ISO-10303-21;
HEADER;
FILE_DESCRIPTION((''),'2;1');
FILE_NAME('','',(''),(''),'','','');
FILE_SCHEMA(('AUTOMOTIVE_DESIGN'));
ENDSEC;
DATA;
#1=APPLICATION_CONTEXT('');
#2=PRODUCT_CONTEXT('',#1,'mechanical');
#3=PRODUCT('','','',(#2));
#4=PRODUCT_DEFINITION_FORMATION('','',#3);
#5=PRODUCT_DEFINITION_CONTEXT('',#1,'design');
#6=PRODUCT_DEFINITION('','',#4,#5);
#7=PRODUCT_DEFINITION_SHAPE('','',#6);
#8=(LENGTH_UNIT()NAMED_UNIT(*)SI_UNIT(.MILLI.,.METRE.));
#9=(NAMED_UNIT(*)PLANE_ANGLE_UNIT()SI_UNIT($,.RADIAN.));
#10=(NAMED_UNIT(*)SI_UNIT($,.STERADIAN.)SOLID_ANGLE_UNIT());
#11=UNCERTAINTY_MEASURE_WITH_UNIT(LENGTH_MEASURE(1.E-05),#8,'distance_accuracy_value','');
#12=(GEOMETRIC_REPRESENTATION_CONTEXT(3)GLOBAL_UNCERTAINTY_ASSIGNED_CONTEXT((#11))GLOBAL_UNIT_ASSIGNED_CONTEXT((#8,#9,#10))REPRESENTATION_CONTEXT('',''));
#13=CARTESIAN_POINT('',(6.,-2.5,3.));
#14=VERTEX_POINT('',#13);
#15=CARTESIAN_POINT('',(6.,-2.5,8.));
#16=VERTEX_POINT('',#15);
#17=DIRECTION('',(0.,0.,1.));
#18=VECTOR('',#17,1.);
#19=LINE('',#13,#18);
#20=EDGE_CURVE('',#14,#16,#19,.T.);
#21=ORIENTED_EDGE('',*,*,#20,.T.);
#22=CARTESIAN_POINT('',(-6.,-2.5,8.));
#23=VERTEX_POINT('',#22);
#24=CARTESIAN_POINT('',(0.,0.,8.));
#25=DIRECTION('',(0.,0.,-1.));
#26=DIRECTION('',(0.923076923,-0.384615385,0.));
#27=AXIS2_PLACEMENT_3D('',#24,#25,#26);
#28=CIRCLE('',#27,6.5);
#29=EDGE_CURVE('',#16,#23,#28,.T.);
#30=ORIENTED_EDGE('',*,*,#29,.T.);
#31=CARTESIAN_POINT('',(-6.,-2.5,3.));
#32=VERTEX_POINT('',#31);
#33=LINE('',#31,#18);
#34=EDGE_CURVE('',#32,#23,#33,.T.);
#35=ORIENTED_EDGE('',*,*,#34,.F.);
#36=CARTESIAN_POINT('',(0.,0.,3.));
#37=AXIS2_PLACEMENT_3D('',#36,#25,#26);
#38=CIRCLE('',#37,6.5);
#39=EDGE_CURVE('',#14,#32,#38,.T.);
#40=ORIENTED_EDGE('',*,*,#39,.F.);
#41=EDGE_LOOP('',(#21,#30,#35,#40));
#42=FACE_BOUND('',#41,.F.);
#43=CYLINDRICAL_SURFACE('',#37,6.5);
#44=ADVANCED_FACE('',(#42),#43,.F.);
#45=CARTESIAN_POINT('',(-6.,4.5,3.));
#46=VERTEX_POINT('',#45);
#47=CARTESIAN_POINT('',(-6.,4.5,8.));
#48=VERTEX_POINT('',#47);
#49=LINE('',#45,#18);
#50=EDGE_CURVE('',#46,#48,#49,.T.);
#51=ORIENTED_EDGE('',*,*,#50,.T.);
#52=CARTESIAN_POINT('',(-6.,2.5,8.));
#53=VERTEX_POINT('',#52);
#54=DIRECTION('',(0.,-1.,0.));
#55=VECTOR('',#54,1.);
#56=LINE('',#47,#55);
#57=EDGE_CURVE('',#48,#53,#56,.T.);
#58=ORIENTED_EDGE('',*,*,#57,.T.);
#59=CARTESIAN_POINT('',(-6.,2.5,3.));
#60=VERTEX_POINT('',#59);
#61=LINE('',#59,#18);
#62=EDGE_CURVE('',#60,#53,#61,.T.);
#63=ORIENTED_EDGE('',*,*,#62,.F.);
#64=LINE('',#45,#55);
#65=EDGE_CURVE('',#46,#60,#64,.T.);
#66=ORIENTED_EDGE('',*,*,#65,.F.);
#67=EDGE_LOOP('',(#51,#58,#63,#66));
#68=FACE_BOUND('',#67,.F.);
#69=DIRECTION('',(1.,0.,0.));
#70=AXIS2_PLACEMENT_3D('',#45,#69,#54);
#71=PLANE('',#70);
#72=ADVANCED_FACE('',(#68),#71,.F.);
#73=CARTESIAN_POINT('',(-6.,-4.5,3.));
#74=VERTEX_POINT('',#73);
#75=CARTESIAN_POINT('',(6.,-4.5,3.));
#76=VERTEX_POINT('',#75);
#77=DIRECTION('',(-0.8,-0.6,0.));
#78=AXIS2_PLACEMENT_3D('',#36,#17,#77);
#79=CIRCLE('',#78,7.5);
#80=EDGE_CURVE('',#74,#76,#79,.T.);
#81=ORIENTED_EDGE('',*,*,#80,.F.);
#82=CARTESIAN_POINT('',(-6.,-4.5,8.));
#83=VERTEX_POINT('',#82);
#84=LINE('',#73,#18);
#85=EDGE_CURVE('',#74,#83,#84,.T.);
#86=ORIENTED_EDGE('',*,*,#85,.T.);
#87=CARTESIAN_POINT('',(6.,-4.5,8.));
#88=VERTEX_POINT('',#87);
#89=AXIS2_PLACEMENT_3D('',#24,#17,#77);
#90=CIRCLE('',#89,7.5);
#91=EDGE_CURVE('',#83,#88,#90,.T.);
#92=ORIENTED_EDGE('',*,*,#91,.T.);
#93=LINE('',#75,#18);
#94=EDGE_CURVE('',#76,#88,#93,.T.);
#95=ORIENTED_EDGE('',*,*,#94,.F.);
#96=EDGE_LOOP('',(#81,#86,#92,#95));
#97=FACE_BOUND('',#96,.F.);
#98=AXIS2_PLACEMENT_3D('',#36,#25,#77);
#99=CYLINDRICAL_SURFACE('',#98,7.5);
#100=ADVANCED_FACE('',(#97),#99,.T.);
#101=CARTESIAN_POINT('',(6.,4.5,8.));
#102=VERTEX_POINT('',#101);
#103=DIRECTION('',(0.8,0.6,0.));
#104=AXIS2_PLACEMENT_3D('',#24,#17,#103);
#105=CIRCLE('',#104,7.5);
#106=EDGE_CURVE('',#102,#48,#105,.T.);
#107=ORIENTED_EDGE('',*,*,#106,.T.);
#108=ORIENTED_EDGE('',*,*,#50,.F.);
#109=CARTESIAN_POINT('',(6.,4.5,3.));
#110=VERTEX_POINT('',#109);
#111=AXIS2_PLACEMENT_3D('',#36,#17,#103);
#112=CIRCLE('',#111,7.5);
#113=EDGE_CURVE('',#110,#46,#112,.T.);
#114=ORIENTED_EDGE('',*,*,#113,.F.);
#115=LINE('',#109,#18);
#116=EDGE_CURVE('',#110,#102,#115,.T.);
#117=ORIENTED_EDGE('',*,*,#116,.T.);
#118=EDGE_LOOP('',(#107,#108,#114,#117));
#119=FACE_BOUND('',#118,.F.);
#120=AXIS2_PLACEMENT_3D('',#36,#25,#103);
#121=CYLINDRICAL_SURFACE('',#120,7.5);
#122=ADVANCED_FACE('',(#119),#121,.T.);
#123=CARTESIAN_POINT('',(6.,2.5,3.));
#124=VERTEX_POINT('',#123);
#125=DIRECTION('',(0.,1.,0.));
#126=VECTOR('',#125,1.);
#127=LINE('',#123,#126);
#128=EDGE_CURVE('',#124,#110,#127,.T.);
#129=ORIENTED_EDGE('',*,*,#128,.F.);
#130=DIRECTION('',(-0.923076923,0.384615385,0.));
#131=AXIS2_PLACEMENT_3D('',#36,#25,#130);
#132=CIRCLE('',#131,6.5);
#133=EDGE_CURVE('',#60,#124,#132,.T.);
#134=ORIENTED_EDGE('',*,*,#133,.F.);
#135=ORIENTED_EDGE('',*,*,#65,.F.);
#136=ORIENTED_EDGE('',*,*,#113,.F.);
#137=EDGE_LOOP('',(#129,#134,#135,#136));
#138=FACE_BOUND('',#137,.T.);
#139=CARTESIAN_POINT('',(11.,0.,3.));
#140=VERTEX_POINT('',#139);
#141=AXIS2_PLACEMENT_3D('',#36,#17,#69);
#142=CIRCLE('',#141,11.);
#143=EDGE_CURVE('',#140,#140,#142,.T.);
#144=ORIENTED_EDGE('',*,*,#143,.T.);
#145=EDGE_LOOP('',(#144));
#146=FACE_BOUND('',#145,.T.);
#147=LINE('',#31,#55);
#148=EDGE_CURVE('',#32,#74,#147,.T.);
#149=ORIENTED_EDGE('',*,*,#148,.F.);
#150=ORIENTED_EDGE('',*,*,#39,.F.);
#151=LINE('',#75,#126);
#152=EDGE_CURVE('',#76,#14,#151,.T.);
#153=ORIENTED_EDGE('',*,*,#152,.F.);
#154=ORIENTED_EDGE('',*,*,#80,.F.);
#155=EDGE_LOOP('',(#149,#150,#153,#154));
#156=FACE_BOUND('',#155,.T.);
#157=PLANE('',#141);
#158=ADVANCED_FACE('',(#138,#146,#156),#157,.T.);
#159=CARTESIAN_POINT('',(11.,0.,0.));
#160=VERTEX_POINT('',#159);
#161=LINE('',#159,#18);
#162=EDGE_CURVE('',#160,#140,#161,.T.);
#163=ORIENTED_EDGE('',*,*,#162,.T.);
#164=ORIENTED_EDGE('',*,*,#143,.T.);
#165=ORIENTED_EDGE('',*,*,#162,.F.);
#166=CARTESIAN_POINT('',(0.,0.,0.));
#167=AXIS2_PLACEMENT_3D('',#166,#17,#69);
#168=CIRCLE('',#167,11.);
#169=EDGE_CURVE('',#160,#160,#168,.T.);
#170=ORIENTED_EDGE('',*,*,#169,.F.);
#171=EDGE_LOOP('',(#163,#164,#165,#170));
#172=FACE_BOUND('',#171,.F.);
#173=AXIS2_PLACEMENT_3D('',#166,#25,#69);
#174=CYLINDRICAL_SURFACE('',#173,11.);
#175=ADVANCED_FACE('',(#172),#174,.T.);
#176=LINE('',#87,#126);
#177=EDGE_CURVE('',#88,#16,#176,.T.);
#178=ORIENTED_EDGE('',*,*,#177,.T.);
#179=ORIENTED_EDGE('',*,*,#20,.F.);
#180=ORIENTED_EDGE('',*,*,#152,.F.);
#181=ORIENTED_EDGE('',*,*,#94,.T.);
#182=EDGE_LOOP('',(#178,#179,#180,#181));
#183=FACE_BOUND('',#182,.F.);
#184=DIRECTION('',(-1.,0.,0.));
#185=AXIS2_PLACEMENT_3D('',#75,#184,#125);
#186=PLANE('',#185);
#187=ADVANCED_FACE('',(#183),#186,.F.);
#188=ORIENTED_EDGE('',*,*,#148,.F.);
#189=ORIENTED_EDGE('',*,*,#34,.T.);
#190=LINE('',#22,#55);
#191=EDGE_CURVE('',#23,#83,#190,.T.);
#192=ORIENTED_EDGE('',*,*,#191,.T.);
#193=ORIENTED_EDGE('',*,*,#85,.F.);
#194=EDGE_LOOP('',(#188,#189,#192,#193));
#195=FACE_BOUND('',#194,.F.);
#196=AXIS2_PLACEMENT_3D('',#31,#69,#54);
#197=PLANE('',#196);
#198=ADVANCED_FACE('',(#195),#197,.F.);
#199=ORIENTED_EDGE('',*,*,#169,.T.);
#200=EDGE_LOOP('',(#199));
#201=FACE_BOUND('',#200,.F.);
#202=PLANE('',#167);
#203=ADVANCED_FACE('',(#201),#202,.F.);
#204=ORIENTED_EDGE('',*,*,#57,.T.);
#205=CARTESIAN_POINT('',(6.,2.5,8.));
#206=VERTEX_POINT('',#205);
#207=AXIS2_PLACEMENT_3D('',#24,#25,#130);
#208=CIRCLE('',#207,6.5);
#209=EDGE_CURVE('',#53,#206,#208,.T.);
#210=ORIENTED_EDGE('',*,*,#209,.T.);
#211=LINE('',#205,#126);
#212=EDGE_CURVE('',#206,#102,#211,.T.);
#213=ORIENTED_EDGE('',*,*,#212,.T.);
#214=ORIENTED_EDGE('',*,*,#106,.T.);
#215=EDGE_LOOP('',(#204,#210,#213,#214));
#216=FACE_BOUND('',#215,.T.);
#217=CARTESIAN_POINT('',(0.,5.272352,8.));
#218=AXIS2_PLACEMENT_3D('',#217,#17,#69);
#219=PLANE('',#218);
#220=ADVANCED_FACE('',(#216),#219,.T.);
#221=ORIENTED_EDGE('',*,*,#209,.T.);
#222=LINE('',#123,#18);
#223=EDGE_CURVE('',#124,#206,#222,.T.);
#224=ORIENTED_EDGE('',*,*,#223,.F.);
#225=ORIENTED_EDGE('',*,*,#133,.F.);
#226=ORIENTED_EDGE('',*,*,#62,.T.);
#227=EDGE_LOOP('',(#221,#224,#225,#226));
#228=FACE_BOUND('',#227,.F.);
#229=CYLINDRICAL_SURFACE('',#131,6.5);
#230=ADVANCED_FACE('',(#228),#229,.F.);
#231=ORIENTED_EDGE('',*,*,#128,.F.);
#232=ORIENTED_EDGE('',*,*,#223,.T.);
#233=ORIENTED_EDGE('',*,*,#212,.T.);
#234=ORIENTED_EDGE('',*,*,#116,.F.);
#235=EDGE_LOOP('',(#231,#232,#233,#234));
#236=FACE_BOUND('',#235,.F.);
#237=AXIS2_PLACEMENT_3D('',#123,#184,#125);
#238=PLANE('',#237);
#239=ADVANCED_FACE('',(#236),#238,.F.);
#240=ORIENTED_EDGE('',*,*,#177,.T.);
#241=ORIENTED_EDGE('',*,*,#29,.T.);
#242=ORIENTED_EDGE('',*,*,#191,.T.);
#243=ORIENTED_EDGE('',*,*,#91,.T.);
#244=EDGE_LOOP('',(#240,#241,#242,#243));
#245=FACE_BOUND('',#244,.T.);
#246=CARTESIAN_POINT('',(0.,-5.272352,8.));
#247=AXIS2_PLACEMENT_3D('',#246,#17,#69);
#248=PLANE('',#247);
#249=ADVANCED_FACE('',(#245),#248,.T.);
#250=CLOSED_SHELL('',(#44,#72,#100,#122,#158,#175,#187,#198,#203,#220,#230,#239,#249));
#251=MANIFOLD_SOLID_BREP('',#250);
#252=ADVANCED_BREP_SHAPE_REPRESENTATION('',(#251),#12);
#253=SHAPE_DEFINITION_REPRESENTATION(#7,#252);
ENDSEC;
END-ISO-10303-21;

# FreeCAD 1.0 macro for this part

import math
import FreeCAD as App
import Part
import Sketcher

doc = App.newDocument("Part")
body = doc.addObject("PartDesign::Body", "Body")

sketch1 = body.newObject("Sketcher::SketchObject", "Sketch")
sketch1.AttachmentSupport = (doc.getObject("XY_Plane"), [""])
sketch1.MapMode = "FlatFace"
sketch1.addGeometry(Part.Circle(App.Vector(0, 0, 0), App.Vector(0, 0, 1), 11), False)
sketch1.addConstraint(Sketcher.Constraint("Coincident", 0, 3, -1, 1))
sketch1.addConstraint(Sketcher.Constraint("Diameter", 0, 22.0))
pad1 = body.newObject("PartDesign::Pad", "Pad")
pad1.Profile = sketch1
pad1.Length = 3

sketch2 = body.newObject("Sketcher::SketchObject", "Sketch001")
sketch2.AttachmentSupport = (doc.getObject("XY_Plane"), [""])
sketch2.MapMode = "FlatFace"
sketch2.AttachmentOffset = App.Placement(App.Vector(0, 0, 3), App.Rotation())
sketch2.addGeometry(Part.LineSegment(App.Vector(6, 2.5, 0), App.Vector(6, 4.5, 0)), False)
sketch2.addGeometry(Part.ArcOfCircle(Part.Circle(App.Vector(0, 0, 0), App.Vector(0, 0, 1), 7.5), math.radians(37), math.radians(143)), False)
sketch2.addGeometry(Part.LineSegment(App.Vector(-6, 4.5, 0), App.Vector(-6, 2.5, 0)), False)
sketch2.addGeometry(Part.ArcOfCircle(Part.Circle(App.Vector(0, 0, 0), App.Vector(0, 0, 1), 6.5), math.radians(23), math.radians(157)), False)
sketch2.addGeometry(Part.LineSegment(App.Vector(6, -4.5, 0), App.Vector(6, -2.5, 0)), False)
sketch2.addGeometry(Part.ArcOfCircle(Part.Circle(App.Vector(0, 0, 0), App.Vector(0, 0, 1), 6.5), math.radians(-157), math.radians(-23)), False)
sketch2.addGeometry(Part.LineSegment(App.Vector(-6, -2.5, 0), App.Vector(-6, -4.5, 0)), False)
sketch2.addGeometry(Part.ArcOfCircle(Part.Circle(App.Vector(0, 0, 0), App.Vector(0, 0, 1), 7.5), math.radians(-143), math.radians(-37)), False)
sketch2.addConstraint(Sketcher.Constraint("Coincident", 0, 2, 1, 1))
sketch2.addConstraint(Sketcher.Constraint("Coincident", 1, 2, 2, 1))
sketch2.addConstraint(Sketcher.Constraint("Coincident", 2, 2, 3, 2))
sketch2.addConstraint(Sketcher.Constraint("Coincident", 3, 1, 0, 1))
sketch2.addConstraint(Sketcher.Constraint("Coincident", 4, 2, 5, 2))
sketch2.addConstraint(Sketcher.Constraint("Coincident", 5, 1, 6, 1))
sketch2.addConstraint(Sketcher.Constraint("Coincident", 6, 2, 7, 1))
sketch2.addConstraint(Sketcher.Constraint("Coincident", 7, 2, 4, 1))
sketch2.addConstraint(Sketcher.Constraint("Vertical", 0))
sketch2.addConstraint(Sketcher.Constraint("Vertical", 2))
sketch2.addConstraint(Sketcher.Constraint("Vertical", 4))
sketch2.addConstraint(Sketcher.Constraint("Vertical", 6))
sketch2.addConstraint(Sketcher.Constraint("Coincident", 1, 3, -1, 1))
sketch2.addConstraint(Sketcher.Constraint("Coincident", 3, 3, -1, 1))
sketch2.addConstraint(Sketcher.Constraint("Coincident", 5, 3, -1, 1))
sketch2.addConstraint(Sketcher.Constraint("Coincident", 7, 3, -1, 1))
sketch2.addConstraint(Sketcher.Constraint("Equal", 3, 5))
sketch2.addConstraint(Sketcher.Constraint("Equal", 1, 7))
sketch2.addConstraint(Sketcher.Constraint("Horizontal", 0, 2, 1, 2))
sketch2.addConstraint(Sketcher.Constraint("Horizontal", 4, 2, 5, 1))
sketch2.addConstraint(Sketcher.Constraint("Vertical", 3, 1, 4, 2))
sketch2.addConstraint(Sketcher.Constraint("Radius", 1, 7.5))
sketch2.addConstraint(Sketcher.Constraint("Radius", 3, 6.5))
sketch2.addConstraint(Sketcher.Constraint("DistanceY", 0, 1, 0, 2, 2.0))
pad2 = body.newObject("PartDesign::Pad", "Pad001")
pad2.Profile = sketch2
pad2.Length = 5

doc.recompute()
